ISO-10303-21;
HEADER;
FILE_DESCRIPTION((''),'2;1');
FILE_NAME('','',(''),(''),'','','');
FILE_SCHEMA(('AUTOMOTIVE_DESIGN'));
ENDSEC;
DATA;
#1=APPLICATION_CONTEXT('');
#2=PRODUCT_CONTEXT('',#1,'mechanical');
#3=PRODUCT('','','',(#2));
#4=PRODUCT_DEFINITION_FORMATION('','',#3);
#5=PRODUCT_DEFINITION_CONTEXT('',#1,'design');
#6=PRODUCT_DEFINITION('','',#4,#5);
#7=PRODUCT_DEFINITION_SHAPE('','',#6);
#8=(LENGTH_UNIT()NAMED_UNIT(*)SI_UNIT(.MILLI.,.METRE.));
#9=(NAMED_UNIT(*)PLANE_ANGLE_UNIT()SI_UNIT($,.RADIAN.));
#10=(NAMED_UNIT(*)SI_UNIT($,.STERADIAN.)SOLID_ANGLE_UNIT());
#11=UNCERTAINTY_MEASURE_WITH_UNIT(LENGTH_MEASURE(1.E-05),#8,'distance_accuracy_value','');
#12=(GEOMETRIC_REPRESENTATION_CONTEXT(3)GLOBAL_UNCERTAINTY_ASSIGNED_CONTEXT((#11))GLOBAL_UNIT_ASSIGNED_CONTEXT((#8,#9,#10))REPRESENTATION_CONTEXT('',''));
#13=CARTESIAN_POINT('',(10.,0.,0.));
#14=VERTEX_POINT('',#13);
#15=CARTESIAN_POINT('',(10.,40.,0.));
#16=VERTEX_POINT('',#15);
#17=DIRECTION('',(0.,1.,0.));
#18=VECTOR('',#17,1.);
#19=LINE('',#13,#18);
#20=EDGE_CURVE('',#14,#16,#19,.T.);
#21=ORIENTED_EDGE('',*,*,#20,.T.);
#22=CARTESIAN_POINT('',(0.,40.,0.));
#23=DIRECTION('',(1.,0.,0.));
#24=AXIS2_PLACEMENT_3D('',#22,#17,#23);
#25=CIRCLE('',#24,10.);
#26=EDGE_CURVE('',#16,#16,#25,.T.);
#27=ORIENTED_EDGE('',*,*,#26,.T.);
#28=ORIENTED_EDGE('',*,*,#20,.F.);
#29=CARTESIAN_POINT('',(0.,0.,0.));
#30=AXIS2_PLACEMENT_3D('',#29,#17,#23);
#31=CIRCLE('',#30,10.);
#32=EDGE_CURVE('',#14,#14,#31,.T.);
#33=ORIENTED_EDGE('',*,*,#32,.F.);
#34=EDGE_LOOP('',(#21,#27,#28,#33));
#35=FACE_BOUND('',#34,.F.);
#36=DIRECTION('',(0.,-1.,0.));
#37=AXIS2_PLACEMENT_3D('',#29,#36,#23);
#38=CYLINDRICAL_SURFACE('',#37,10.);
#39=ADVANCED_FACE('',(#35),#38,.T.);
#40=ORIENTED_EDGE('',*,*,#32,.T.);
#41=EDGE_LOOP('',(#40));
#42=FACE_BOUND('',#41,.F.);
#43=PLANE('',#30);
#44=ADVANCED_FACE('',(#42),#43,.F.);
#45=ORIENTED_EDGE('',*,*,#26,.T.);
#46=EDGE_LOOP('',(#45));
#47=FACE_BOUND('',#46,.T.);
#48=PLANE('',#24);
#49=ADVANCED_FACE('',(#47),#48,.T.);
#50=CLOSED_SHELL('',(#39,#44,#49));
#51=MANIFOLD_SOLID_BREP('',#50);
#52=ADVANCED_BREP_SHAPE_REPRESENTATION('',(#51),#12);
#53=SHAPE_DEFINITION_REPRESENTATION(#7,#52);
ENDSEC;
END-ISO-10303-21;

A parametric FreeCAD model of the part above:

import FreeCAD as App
import Part
import Sketcher

doc = App.newDocument("Part")
params = doc.addObject("Spreadsheet::Sheet", "Params")
for row, (alias, value) in enumerate([
    ("sketch1_diameter", "20 mm"),
    ("pad1_length", "40 mm"),
], start=1):
    params.set(f"A{row}", alias)
    params.set(f"B{row}", "=" + value)
    params.setAlias(f"B{row}", alias)

body = doc.addObject("PartDesign::Body", "Body")

sketch1 = body.newObject("Sketcher::SketchObject", "Sketch")
sketch1.AttachmentSupport = (doc.getObject("XZ_Plane"), [""])
sketch1.MapMode = "FlatFace"
sketch1.addGeometry(Part.Circle(App.Vector(0, 0, 0), App.Vector(0, 0, 1), 10), False)
sketch1.addConstraint(Sketcher.Constraint("Coincident", 0, 3, -1, 1))
sketch1.addConstraint(Sketcher.Constraint("Diameter", 0, 20.0))
sketch1.setExpression("Constraints[1]", "Params.sketch1_diameter")
pad1 = body.newObject("PartDesign::Pad", "Pad")
pad1.Profile = sketch1
pad1.setExpression("Length", "Params.pad1_length")
pad1.Reversed = True

doc.recompute()
